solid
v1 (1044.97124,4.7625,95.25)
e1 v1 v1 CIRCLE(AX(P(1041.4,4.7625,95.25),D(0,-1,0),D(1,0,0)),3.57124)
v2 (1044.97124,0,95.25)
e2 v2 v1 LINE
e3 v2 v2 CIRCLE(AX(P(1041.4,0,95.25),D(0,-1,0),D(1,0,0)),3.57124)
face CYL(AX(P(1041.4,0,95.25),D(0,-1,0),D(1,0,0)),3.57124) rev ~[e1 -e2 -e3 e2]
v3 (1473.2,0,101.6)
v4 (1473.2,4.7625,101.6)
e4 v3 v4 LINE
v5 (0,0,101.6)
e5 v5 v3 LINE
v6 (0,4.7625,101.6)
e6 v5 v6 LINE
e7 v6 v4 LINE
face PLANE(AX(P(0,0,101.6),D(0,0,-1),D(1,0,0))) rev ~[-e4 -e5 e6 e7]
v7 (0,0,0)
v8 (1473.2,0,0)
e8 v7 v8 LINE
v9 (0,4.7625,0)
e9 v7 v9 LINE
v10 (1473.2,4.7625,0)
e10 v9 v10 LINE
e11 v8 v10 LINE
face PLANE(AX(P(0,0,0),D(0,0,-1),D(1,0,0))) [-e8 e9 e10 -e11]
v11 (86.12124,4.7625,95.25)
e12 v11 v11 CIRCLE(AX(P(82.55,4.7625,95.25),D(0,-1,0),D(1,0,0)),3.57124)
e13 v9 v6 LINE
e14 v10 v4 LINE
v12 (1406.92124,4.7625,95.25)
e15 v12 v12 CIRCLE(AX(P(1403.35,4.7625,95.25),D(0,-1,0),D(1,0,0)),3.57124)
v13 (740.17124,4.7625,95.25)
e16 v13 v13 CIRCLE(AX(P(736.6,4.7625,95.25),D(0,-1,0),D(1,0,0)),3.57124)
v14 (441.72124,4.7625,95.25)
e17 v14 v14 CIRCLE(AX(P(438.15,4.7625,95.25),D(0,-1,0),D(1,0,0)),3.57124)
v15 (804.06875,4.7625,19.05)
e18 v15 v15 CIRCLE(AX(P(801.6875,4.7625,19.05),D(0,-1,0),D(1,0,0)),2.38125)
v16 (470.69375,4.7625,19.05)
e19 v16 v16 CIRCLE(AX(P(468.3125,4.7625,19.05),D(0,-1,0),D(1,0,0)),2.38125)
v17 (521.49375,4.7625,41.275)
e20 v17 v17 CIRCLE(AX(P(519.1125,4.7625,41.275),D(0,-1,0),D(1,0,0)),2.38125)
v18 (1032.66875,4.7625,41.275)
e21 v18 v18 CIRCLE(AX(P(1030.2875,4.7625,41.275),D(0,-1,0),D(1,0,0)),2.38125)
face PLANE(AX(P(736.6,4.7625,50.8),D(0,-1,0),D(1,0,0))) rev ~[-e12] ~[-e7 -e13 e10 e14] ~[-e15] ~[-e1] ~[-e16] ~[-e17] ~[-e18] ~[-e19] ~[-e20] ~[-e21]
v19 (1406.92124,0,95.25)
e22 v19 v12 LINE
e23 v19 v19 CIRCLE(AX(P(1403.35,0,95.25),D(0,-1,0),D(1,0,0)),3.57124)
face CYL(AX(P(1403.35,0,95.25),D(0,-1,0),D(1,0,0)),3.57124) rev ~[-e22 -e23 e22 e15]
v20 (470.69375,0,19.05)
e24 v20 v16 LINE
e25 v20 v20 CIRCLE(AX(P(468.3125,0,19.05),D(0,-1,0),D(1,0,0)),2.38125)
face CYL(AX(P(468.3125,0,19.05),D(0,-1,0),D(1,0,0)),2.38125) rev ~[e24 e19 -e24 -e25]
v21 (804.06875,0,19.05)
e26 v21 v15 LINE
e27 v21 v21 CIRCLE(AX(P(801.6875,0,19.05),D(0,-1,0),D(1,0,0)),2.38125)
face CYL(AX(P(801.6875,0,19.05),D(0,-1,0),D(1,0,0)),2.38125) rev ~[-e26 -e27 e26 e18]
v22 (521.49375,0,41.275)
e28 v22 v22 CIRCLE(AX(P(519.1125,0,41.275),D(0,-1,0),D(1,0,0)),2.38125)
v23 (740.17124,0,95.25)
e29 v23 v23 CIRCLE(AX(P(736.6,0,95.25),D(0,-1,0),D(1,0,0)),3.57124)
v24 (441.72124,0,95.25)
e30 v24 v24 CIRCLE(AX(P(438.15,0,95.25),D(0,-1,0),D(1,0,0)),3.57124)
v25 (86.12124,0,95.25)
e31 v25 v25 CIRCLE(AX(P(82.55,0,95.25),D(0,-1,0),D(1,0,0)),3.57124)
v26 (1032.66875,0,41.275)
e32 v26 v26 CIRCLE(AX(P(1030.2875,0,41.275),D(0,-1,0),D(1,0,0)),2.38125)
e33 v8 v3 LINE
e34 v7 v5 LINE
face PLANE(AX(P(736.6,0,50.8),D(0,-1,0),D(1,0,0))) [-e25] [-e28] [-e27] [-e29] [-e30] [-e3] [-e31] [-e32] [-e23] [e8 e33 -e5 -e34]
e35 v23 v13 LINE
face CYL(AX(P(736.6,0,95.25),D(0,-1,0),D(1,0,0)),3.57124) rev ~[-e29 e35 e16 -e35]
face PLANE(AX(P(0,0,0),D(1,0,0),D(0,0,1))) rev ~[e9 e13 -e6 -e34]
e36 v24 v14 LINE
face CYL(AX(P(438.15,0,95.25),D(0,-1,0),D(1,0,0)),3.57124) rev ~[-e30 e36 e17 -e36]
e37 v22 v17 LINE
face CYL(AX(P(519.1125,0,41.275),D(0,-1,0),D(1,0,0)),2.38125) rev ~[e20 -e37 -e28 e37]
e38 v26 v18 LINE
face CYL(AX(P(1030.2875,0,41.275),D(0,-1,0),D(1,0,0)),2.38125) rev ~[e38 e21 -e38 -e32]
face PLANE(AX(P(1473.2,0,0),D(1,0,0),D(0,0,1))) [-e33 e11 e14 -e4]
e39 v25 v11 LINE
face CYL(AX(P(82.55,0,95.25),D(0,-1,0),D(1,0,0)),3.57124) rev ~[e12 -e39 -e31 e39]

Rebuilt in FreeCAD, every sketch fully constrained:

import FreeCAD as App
import Part
import Sketcher
Q = App.Units.Quantity

doc = App.newDocument("Part")
body = doc.addObject("PartDesign::Body", "Body")

# Sketch on XZ plane
sketch1 = body.newObject("Sketcher::SketchObject", "Sketch")
sketch1.AttachmentSupport = (doc.getObject("XZ_Plane"), [""])
sketch1.MapMode = "FlatFace"
sketch1.addGeometry(Part.LineSegment(App.Vector(0, 102, 0), App.Vector(0, 0, 0)), False)
sketch1.addGeometry(Part.LineSegment(App.Vector(0, 0, 0), App.Vector(1473, 0, 0)), False)
sketch1.addGeometry(Part.LineSegment(App.Vector(1473, 0, 0), App.Vector(1473, 102, 0)), False)
sketch1.addGeometry(Part.LineSegment(App.Vector(1473, 102, 0), App.Vector(0, 102, 0)), False)
sketch1.addConstraint(Sketcher.Constraint("Coincident", 0, 2, 1, 1))
sketch1.addConstraint(Sketcher.Constraint("Coincident", 1, 2, 2, 1))
sketch1.addConstraint(Sketcher.Constraint("Coincident", 2, 2, 3, 1))
sketch1.addConstraint(Sketcher.Constraint("Coincident", 3, 2, 0, 1))
sketch1.addConstraint(Sketcher.Constraint("Vertical", 0))
sketch1.addConstraint(Sketcher.Constraint("Horizontal", 1))
sketch1.addConstraint(Sketcher.Constraint("Vertical", 2))
sketch1.addConstraint(Sketcher.Constraint("Horizontal", 3))
sketch1.addConstraint(Sketcher.Constraint("Coincident", 0, 2, -1, 1))
sketch1.addConstraint(Sketcher.Constraint("DistanceX", 1, 1, 1, 2, Q("58 in")))
sketch1.addConstraint(Sketcher.Constraint("DistanceY", 0, 2, 0, 1, Q("4 in")))
pad1 = body.newObject("PartDesign::Pad", "Pad")
pad1.Profile = sketch1
pad1.Length = Q("0.1875 in")
pad1.Reversed = True

# Sketch on XZ plane
sketch2 = body.newObject("Sketcher::SketchObject", "Sketch001")
sketch2.AttachmentSupport = (doc.getObject("XZ_Plane"), [""])
sketch2.MapMode = "FlatFace"
sketch2.addGeometry(Part.Circle(App.Vector(82.5, 95.2, 0), App.Vector(0, 0, 1), 3.6), False)
sketch2.addGeometry(Part.Circle(App.Vector(438.1, 95.2, 0), App.Vector(0, 0, 1), 3.6), False)
sketch2.addGeometry(Part.Circle(App.Vector(736.6, 95.2, 0), App.Vector(0, 0, 1), 3.6), False)
sketch2.addGeometry(Part.Circle(App.Vector(1041.4, 95.2, 0), App.Vector(0, 0, 1), 3.6), False)
sketch2.addGeometry(Part.Circle(App.Vector(1403.3, 95.2, 0), App.Vector(0, 0, 1), 3.6), False)
sketch2.addConstraint(Sketcher.Constraint("Equal", 0, 1))
sketch2.addConstraint(Sketcher.Constraint("Equal", 1, 2))
sketch2.addConstraint(Sketcher.Constraint("Equal", 2, 3))
sketch2.addConstraint(Sketcher.Constraint("Equal", 3, 4))
sketch2.addConstraint(Sketcher.Constraint("Horizontal", 0, 3, 1, 3))
sketch2.addConstraint(Sketcher.Constraint("Horizontal", 1, 3, 2, 3))
sketch2.addConstraint(Sketcher.Constraint("Horizontal", 2, 3, 3, 3))
sketch2.addConstraint(Sketcher.Constraint("Horizontal", 3, 3, 4, 3))
sketch2.addConstraint(Sketcher.Constraint("DistanceX", -1, 1, 2, 3, Q("29 in")))
sketch2.addConstraint(Sketcher.Constraint("DistanceX", -1, 1, 3, 3, Q("41 in")))
sketch2.addConstraint(Sketcher.Constraint("DistanceX", 0, 3, 1, 3, Q("14 in")))
sketch2.addConstraint(Sketcher.Constraint("DistanceX", 1, 3, 4, 3, Q("38 in")))
sketch2.addConstraint(Sketcher.Constraint("Diameter", 0, Q("0.2812 in")))
sketch2.addConstraint(Sketcher.Constraint("DistanceX", -1, 1, 0, 3, Q("3.25 in")))
sketch2.addConstraint(Sketcher.Constraint("DistanceY", -1, 1, 0, 3, Q("3.75 in")))
pocket1 = body.newObject("PartDesign::Pocket", "Pocket")
pocket1.Profile = sketch2
pocket1.Type = "ThroughAll"

# Sketch on XZ plane
sketch3 = body.newObject("Sketcher::SketchObject", "Sketch002")
sketch3.AttachmentSupport = (doc.getObject("XZ_Plane"), [""])
sketch3.MapMode = "FlatFace"
sketch3.addGeometry(Part.Circle(App.Vector(519.1, 41.3, 0), App.Vector(0, 0, 1), 2.4), False)
sketch3.addGeometry(Part.Circle(App.Vector(1030.3, 41.3, 0), App.Vector(0, 0, 1), 2.4), False)
sketch3.addConstraint(Sketcher.Constraint("Equal", 0, 1))
sketch3.addConstraint(Sketcher.Constraint("Horizontal", 0, 3, 1, 3))
sketch3.addConstraint(Sketcher.Constraint("Diameter", 0, Q("0.1875 in")))
sketch3.addConstraint(Sketcher.Constraint("DistanceX", -1, 1, 0, 3, Q("20.4375 in")))
sketch3.addConstraint(Sketcher.Constraint("DistanceY", -1, 1, 0, 3, Q("1.625 in")))
sketch3.addConstraint(Sketcher.Constraint("DistanceX", -1, 1, 1, 3, Q("40.5625 in")))
pocket2 = body.newObject("PartDesign::Pocket", "Pocket001")
pocket2.Profile = sketch3
pocket2.Type = "ThroughAll"

# Sketch on XZ plane
sketch4 = body.newObject("Sketcher::SketchObject", "Sketch003")
sketch4.AttachmentSupport = (doc.getObject("XZ_Plane"), [""])
sketch4.MapMode = "FlatFace"
sketch4.addGeometry(Part.Circle(App.Vector(468.3, 19.1, 0), App.Vector(0, 0, 1), 2.4), False)
sketch4.addGeometry(Part.Circle(App.Vector(801.7, 19.1, 0), App.Vector(0, 0, 1), 2.4), False)
sketch4.addConstraint(Sketcher.Constraint("Equal", 0, 1))
sketch4.addConstraint(Sketcher.Constraint("Horizontal", 0, 3, 1, 3))
sketch4.addConstraint(Sketcher.Constraint("Diameter", 0, Q("0.1875 in")))
sketch4.addConstraint(Sketcher.Constraint("DistanceY", -1, 1, 0, 3, Q("0.75 in")))
sketch4.addConstraint(Sketcher.Constraint("DistanceX", -1, 1, 0, 3, Q("18.4375 in")))
sketch4.addConstraint(Sketcher.Constraint("DistanceX", -1, 1, 1, 3, Q("31.5625 in")))
pocket3 = body.newObject("PartDesign::Pocket", "Pocket002")
pocket3.Profile = sketch4
pocket3.Type = "ThroughAll"

doc.recompute()
